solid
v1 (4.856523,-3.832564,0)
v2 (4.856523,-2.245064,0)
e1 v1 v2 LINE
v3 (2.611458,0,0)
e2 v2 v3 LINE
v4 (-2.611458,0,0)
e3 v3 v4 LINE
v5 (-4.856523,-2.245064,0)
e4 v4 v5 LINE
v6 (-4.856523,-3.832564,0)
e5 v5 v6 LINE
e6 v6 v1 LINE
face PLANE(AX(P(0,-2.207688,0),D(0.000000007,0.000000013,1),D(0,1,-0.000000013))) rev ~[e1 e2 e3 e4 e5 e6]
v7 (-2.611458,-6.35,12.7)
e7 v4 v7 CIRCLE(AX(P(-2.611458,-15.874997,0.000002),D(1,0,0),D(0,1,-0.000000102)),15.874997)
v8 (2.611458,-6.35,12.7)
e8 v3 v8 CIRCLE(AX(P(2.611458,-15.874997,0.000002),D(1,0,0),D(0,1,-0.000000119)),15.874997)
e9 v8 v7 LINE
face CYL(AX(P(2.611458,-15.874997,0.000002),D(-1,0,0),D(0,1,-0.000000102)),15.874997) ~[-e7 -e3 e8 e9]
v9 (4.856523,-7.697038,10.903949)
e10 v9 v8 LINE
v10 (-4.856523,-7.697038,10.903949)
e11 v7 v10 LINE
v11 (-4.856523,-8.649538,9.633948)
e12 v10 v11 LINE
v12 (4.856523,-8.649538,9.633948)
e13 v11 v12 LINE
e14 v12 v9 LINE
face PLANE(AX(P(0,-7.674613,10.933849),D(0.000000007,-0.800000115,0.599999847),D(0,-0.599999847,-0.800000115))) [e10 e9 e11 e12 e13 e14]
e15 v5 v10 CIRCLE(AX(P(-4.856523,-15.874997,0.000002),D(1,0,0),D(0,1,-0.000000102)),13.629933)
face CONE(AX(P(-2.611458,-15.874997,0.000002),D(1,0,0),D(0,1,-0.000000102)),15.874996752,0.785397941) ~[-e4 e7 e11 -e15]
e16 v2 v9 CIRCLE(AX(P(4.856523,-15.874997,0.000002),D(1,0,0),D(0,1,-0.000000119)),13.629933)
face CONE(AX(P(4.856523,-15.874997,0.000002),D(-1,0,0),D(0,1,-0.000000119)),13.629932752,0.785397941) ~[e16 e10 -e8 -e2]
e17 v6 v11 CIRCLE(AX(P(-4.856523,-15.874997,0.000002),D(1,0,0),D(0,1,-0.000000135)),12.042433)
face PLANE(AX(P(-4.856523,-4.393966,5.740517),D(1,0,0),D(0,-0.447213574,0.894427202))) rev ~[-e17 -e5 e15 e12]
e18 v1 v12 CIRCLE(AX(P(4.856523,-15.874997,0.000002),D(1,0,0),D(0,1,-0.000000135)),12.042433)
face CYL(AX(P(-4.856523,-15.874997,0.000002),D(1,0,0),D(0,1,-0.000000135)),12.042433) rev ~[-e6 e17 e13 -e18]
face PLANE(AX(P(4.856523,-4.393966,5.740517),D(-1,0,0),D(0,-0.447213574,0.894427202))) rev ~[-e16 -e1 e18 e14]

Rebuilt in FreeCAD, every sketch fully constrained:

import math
import FreeCAD as App
import Part
import Sketcher

V = App.Vector
Q = App.Units.Quantity


def add_polygon(sketch, points):
    """Adds a closed chain of lines whose ends are joined by coincident constraints."""
    first, n = sketch.GeometryCount, len(points)
    for a, b in zip(points, points[1:] + points[:1]):
        sketch.addGeometry(Part.LineSegment(App.Vector(*a, 0), App.Vector(*b, 0)), False)
    for i in range(n):
        sketch.addConstraint(Sketcher.Constraint("Coincident", first + i, 2, first + (i + 1) % n, 1))

doc = App.newDocument("Part")
body = doc.addObject("PartDesign::Body", "Body")

sketch1 = body.newObject("Sketcher::SketchObject", "Sketch")
sketch1.AttachmentSupport = (doc.getObject("XY_Plane"), [""])
sketch1.MapMode = "FlatFace"
add_polygon(sketch1, [(4.9, -3.8), (4.9, -2.2), (2.6, 0), (-2.6, 0), (-4.9, -2.2), (-4.9, -3.8)])
sketch1.addConstraint([
    Sketcher.Constraint("Vertical", 0),
    Sketcher.Constraint("Horizontal", 2),
    Sketcher.Constraint("Vertical", 4),
    Sketcher.Constraint("Horizontal", 5),
    Sketcher.Constraint("Symmetric", 1, 2, 2, 2, -1, 1),
    Sketcher.Constraint("Symmetric", 0, 2, 3, 2, -2),
    Sketcher.Constraint("Perpendicular", 1, 3),
    Sketcher.Constraint("DistanceY", 0, 1, 0, 2, Q("0.0625 in")),
    Sketcher.Constraint("Distance", 1, Q("0.125 in")),
    Sketcher.Constraint("DistanceX", 2, 2, 2, 1, Q("5.222916 mm")),
])

sketch2 = body.newObject("Sketcher::SketchObject", "Sketch001")
sketch2.AttachmentSupport = (doc.getObject("YZ_Plane"), [""])
sketch2.MapMode = "FlatFace"
sketch2.addGeometry(Part.ArcOfCircle(Part.Circle(V(-16, 0, 0), V(0, 0, 1), 16), math.radians(0), math.radians(53)), False)
sketch2.addConstraint([
    Sketcher.Constraint("Coincident", 0, 1, -1, 1),
    Sketcher.Constraint("PointOnObject", 0, 3, -1),
    Sketcher.Constraint("Radius", 0, Q("0.6249999 in")),
    Sketcher.Constraint("DistanceY", -1, 1, 0, 2, Q("0.5 in")),
])
doc.recompute()

additivepipe = body.newObject("PartDesign::AdditivePipe", "AdditivePipe")
additivepipe.Profile = sketch1
additivepipe.Spine = (sketch2, ["Edge1"])

doc.recompute()
